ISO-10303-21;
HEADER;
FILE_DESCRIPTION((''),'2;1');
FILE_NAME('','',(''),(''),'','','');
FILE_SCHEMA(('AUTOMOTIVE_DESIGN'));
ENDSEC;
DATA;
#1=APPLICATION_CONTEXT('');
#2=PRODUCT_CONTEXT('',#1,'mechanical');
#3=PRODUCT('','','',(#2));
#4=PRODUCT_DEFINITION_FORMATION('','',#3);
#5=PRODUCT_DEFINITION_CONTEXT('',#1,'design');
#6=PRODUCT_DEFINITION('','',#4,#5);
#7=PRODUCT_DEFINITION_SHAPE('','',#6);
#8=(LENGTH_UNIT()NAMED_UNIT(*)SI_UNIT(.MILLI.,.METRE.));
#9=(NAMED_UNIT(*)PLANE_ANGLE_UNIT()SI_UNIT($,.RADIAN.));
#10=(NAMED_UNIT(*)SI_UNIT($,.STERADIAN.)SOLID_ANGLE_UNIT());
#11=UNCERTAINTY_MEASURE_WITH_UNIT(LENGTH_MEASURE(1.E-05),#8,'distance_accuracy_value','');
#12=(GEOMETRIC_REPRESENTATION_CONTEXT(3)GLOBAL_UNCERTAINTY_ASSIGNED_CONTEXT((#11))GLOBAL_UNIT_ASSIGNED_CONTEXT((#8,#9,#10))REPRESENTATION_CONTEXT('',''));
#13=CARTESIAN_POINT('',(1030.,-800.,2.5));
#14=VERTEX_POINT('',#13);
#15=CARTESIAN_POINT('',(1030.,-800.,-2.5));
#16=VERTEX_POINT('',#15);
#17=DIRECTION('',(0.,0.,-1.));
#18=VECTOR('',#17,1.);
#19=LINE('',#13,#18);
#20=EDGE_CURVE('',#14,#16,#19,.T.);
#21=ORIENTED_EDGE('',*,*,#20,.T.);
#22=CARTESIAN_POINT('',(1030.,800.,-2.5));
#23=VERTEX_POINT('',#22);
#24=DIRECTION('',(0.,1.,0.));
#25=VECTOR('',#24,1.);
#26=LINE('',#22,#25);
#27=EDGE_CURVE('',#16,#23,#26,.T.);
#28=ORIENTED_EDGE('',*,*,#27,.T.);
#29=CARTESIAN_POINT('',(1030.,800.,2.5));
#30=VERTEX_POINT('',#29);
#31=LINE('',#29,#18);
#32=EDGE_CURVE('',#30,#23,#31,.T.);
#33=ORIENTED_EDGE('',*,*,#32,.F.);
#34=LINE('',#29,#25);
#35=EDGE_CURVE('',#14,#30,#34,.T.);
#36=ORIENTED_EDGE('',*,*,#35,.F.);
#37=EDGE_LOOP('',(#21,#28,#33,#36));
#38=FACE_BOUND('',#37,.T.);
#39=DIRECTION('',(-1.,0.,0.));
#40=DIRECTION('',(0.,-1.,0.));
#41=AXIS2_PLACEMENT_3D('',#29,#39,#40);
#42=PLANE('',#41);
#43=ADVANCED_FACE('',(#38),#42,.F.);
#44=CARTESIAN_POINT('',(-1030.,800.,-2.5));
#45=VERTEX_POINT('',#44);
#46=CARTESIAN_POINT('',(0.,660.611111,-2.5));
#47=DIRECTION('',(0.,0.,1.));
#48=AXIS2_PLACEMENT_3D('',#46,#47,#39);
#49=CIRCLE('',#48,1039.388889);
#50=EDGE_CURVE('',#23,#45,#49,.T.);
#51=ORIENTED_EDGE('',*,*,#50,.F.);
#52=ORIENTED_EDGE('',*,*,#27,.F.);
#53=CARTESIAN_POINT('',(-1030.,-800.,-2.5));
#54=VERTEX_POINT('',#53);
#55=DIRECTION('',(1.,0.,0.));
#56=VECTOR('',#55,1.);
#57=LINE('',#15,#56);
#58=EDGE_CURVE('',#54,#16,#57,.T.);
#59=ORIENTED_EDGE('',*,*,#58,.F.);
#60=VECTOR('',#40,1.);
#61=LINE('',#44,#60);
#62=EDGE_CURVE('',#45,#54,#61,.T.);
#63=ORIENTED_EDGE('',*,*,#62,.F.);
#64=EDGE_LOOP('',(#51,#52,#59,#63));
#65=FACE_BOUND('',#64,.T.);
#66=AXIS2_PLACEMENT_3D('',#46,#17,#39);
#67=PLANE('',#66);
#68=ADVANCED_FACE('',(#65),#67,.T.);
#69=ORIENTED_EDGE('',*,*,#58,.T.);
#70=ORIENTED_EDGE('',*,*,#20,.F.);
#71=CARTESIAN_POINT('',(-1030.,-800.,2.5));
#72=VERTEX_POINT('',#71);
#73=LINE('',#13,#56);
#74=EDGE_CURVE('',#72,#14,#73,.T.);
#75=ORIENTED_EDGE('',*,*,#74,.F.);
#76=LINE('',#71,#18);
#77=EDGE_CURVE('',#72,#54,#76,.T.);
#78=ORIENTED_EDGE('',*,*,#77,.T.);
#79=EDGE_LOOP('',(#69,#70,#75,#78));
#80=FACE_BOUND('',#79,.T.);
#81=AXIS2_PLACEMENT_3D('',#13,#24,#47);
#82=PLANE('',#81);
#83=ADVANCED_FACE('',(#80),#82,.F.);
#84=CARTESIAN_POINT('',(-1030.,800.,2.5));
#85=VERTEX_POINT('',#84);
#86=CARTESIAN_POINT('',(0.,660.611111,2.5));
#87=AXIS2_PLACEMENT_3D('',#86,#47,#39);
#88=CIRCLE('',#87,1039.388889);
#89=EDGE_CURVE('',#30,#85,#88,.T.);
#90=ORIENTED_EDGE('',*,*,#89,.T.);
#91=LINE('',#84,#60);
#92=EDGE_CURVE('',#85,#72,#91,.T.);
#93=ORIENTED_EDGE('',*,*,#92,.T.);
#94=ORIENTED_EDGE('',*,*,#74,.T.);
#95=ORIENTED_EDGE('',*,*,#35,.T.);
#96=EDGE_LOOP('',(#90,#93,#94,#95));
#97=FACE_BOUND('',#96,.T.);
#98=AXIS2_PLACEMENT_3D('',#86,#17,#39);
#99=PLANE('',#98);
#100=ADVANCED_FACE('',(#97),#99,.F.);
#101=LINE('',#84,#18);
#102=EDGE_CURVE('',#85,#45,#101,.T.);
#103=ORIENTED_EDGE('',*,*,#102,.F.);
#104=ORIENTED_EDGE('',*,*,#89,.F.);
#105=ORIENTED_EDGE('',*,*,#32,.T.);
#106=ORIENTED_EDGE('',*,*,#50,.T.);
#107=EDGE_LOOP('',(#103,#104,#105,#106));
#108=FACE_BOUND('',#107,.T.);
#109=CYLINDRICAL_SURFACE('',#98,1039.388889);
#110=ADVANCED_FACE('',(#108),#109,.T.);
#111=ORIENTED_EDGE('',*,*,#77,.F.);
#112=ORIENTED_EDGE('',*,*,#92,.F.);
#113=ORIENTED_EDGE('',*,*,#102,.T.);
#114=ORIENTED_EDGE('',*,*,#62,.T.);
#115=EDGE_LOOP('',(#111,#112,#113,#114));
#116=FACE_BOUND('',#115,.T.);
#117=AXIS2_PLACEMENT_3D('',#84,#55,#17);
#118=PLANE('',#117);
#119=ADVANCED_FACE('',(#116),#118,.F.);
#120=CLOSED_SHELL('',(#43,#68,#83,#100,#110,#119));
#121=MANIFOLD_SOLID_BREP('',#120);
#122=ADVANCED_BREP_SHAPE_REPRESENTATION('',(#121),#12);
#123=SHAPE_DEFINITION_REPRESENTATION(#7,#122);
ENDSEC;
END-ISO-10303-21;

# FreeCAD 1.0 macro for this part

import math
import FreeCAD as App
import Part
import Sketcher
Q = App.Units.Quantity

doc = App.newDocument("Part")
body = doc.addObject("PartDesign::Body", "Body")

sketch1 = body.newObject("Sketcher::SketchObject", "Sketch")
sketch1.AttachmentSupport = (doc.getObject("XY_Plane"), [""])
sketch1.MapMode = "FlatFace"
sketch1.addGeometry([
    Part.LineSegment(App.Vector(1030, -800, 0), App.Vector(1030, 800, 0)),
    Part.ArcOfCircle(Part.Circle(App.Vector(0, 661, 0), App.Vector(0, 0, 1), 1039), math.radians(8), math.radians(172)),
    Part.LineSegment(App.Vector(-1030, 800, 0), App.Vector(-1030, -800, 0)),
    Part.LineSegment(App.Vector(-1030, -800, 0), App.Vector(1030, -800, 0)),
], False)
sketch1.addConstraint([
    Sketcher.Constraint("Coincident", 0, 2, 1, 1),
    Sketcher.Constraint("Coincident", 1, 2, 2, 1),
    Sketcher.Constraint("Coincident", 2, 2, 3, 1),
    Sketcher.Constraint("Coincident", 3, 2, 0, 1),
    Sketcher.Constraint("Vertical", 0),
    Sketcher.Constraint("Vertical", 2),
    Sketcher.Constraint("Horizontal", 3),
    Sketcher.Constraint("Symmetric", 0, 2, 2, 2, -1, 1),
    Sketcher.Constraint("PointOnObject", 1, 3, -2),
    Sketcher.Constraint("DistanceX", 3, 1, 3, 2, Q("2060 mm")),
    Sketcher.Constraint("DistanceY", 0, 1, 0, 2, Q("1600 mm")),
    Sketcher.Constraint("Radius", 1, Q("1039.388889 mm")),
])
pad1 = body.newObject("PartDesign::Pad", "Pad")
pad1.Profile = sketch1
pad1.Length = 5
pad1.Midplane = True

doc.recompute()
